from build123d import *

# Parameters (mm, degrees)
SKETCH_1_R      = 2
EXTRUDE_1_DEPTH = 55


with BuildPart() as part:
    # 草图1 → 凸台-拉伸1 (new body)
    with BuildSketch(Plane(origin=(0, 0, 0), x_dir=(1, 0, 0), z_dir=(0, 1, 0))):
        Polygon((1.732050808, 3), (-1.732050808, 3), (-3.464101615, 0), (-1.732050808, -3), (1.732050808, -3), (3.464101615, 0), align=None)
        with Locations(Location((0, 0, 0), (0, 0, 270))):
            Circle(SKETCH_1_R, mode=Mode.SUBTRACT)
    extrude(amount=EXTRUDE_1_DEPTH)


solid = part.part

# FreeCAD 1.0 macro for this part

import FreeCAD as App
import Part
import Sketcher

V = App.Vector
Q = App.Units.Quantity


def add_polygon(sketch, points):
    """Adds a closed chain of lines whose ends are joined by coincident constraints."""
    first, n = sketch.GeometryCount, len(points)
    for a, b in zip(points, points[1:] + points[:1]):
        sketch.addGeometry(Part.LineSegment(App.Vector(*a, 0), App.Vector(*b, 0)), False)
    for i in range(n):
        sketch.addConstraint(Sketcher.Constraint("Coincident", first + i, 2, first + (i + 1) % n, 1))

doc = App.newDocument("Part")
body = doc.addObject("PartDesign::Body", "Body")

# Sketch on XZ plane
sketch1 = body.newObject("Sketcher::SketchObject", "Sketch")
sketch1.AttachmentSupport = (doc.getObject("XZ_Plane"), [""])
sketch1.MapMode = "FlatFace"
add_polygon(sketch1, [(1.7, -3), (-1.7, -3), (-3.5, 0), (-1.7, 3), (1.7, 3), (3.5, 0)])  # lines 0-5
sketch1.addGeometry(Part.Circle(V(0, 0, 0), V(0, 0, 1), 2), False)  # 6
sketch1.addConstraint([
    Sketcher.Constraint("Horizontal", 0),
    Sketcher.Constraint("Horizontal", 3),
    Sketcher.Constraint("Coincident", 6, 3, -1, 1),
    Sketcher.Constraint("Symmetric", 0, 2, 3, 2, -1, 1),
    Sketcher.Constraint("Symmetric", 1, 2, 4, 2, -1, 1),
    Sketcher.Constraint("PointOnObject", 1, 2, -1),
    Sketcher.Constraint("Parallel", 2, 5),
    Sketcher.Constraint("Vertical", 0, 2, 2, 2),
    Sketcher.Constraint("Diameter", 6, 4.0),
    Sketcher.Constraint("Angle", 1, Q("120 deg")),
    Sketcher.Constraint("DistanceY", 0, 2, -1, 1, 3.0),
    Sketcher.Constraint("DistanceX", 0, 2, 0, 1, 3.464102),
])
pad1 = body.newObject("PartDesign::Pad", "Pad")
pad1.Profile = sketch1
pad1.Length = 55
pad1.Reversed = True

doc.recompute()
